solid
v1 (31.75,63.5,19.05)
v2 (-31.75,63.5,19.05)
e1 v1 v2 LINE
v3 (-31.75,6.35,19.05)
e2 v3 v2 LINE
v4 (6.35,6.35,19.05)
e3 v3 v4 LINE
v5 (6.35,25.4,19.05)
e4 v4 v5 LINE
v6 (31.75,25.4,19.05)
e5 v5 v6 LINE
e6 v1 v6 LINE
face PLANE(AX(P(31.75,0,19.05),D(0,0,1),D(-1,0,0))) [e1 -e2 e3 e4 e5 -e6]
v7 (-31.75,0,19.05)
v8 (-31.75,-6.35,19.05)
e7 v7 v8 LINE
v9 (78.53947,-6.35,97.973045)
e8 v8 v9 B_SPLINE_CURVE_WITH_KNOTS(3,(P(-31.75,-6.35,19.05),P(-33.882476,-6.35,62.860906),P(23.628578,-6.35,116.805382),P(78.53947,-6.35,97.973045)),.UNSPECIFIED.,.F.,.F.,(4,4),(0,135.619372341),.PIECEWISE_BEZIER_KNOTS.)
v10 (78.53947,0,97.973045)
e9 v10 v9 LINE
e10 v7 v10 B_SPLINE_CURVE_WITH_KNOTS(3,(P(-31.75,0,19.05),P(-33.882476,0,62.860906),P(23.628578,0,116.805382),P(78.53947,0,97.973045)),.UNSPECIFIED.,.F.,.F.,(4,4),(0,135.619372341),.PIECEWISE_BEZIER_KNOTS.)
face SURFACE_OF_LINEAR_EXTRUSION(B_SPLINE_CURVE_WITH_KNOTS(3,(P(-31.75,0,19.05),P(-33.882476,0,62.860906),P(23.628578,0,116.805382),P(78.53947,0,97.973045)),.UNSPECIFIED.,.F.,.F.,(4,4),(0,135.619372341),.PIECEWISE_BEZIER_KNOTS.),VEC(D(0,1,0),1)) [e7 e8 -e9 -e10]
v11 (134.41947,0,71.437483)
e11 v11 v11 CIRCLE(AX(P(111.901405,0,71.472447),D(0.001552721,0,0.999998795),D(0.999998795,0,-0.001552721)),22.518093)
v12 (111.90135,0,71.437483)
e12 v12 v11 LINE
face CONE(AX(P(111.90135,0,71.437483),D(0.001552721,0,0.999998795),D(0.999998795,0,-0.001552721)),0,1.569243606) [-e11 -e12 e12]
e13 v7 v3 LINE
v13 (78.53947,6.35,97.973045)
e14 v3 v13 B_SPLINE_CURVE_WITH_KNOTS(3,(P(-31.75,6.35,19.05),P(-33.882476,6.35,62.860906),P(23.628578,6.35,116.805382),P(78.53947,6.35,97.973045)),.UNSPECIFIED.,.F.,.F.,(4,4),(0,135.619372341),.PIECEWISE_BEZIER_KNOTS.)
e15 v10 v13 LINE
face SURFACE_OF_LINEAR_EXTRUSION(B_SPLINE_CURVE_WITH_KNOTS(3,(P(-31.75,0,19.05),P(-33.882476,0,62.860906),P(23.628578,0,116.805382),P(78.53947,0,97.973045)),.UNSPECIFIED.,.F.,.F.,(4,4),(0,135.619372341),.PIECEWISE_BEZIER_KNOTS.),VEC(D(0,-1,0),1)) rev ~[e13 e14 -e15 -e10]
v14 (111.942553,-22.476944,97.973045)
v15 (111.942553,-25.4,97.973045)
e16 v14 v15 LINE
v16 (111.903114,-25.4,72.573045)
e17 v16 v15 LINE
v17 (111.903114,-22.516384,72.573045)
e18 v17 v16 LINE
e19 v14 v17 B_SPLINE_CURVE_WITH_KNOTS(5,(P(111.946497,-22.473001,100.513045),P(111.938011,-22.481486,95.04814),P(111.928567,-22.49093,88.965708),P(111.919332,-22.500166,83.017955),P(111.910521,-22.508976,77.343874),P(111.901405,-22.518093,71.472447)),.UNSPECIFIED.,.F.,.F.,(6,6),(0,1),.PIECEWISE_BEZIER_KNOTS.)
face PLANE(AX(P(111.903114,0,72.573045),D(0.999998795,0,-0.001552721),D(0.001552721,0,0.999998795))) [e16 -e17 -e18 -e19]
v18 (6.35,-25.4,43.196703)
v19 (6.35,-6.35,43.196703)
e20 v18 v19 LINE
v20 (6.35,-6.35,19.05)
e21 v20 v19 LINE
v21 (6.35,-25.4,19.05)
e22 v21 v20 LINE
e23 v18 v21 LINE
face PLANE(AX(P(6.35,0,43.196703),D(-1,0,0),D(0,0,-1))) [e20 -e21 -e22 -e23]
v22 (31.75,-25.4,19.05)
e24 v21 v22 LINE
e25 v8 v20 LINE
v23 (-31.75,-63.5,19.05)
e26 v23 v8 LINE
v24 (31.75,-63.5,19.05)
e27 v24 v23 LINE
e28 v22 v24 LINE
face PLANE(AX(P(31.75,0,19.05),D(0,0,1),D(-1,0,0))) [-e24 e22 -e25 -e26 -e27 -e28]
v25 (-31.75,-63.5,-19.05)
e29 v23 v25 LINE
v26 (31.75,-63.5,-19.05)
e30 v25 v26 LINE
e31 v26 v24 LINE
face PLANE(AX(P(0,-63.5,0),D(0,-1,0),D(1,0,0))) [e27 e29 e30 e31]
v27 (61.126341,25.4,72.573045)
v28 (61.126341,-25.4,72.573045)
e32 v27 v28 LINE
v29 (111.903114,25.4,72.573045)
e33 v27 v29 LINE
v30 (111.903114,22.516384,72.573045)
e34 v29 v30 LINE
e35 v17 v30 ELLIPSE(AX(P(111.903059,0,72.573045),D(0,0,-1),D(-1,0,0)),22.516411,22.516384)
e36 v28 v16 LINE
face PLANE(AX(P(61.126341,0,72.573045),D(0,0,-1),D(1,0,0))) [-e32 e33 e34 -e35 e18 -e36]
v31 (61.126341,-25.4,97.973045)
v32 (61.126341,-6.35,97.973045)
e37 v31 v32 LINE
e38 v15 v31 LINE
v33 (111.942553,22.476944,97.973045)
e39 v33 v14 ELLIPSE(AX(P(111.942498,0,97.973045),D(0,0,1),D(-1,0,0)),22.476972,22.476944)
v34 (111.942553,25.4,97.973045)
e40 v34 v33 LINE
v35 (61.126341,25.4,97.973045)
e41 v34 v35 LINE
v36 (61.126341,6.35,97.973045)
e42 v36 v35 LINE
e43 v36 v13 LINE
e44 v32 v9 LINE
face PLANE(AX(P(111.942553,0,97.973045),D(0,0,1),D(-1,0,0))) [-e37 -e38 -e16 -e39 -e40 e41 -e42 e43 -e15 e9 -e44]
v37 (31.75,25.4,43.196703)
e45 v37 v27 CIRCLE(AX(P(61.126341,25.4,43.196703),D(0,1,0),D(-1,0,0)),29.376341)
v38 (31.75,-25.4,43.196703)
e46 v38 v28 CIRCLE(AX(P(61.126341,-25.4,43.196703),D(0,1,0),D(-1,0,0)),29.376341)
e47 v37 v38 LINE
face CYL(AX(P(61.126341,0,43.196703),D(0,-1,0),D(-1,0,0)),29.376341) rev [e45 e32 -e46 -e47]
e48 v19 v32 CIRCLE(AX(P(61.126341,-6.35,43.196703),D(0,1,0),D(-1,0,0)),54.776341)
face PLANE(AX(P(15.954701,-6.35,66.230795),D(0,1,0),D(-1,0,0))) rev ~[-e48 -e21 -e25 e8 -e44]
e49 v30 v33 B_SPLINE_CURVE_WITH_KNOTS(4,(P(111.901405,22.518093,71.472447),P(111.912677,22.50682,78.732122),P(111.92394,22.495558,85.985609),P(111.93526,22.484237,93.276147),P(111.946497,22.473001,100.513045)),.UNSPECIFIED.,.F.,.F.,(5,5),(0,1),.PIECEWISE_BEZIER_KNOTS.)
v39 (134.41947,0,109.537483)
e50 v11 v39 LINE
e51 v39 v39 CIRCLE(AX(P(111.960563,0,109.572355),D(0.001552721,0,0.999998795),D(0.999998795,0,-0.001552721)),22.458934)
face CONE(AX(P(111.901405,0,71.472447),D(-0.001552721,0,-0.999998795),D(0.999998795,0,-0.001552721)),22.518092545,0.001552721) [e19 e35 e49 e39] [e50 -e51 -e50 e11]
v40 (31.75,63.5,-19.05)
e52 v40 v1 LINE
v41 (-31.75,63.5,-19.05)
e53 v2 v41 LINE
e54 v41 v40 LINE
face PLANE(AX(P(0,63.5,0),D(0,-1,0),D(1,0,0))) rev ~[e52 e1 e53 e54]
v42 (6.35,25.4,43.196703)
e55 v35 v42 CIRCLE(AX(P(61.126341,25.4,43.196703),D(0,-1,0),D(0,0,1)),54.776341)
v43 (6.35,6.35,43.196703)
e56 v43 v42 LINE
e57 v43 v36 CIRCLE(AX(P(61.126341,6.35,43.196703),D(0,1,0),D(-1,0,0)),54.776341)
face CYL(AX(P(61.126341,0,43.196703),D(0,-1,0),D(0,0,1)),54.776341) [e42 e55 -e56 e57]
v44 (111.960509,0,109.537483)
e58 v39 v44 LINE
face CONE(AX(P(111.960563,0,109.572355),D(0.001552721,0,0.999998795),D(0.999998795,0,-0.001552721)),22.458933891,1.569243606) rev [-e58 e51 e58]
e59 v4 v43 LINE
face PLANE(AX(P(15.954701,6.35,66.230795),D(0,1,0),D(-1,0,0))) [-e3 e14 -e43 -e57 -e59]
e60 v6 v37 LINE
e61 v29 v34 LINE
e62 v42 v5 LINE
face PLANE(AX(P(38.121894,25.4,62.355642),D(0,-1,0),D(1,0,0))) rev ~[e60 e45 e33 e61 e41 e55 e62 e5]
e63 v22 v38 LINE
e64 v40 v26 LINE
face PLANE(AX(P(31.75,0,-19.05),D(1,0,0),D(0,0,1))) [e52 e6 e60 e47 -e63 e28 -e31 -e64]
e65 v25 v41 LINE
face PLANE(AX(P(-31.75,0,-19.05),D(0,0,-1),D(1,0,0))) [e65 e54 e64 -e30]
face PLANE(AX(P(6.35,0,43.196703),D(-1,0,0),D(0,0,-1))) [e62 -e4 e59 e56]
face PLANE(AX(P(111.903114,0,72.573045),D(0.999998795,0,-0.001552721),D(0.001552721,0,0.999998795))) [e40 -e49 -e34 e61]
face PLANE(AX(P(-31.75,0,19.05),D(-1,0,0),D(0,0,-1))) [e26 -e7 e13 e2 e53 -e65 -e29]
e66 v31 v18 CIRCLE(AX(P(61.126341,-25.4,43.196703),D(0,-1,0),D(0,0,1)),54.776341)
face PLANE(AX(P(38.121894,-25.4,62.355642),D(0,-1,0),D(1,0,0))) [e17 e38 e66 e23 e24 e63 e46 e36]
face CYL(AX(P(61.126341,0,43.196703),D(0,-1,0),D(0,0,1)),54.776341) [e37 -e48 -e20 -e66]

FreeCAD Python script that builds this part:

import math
import FreeCAD as App
import Part
import Sketcher
Q = App.Units.Quantity


def add_polygon(sketch, points):
    """Adds a closed chain of lines whose ends are joined by coincident constraints."""
    first, n = sketch.GeometryCount, len(points)
    for a, b in zip(points, points[1:] + points[:1]):
        sketch.addGeometry(Part.LineSegment(App.Vector(*a, 0), App.Vector(*b, 0)), False)
    for i in range(n):
        sketch.addConstraint(Sketcher.Constraint("Coincident", first + i, 2, first + (i + 1) % n, 1))

doc = App.newDocument("Part")
params = doc.addObject("Spreadsheet::Sheet", "Params")
for row, (alias, value) in enumerate([
    ("sketch1_width", "2.5 in"),
    ("sketch1_height", "1.5 in"),
    ("pad1_length", "5 in"),
    ("sketch2_width", "1 in"),
    ("pad2_length", "2 in"),
    ("sketch3_width", "1.5 in"),
    ("pad3_length", "0.5 in"),
    ("sketch4_height", "1.5 in"),
    ("revolution_angle", "360 deg"),
], start=1):
    params.set(f"A{row}", alias)
    params.set(f"B{row}", "=" + value)
    params.setAlias(f"B{row}", alias)

body = doc.addObject("PartDesign::Body", "Body")

# Sketch on XZ plane
sketch1 = body.newObject("Sketcher::SketchObject", "Sketch")
sketch1.AttachmentSupport = (doc.getObject("XZ_Plane"), [""])
sketch1.MapMode = "FlatFace"
add_polygon(sketch1, [(-32, -19), (32, -19), (32, 19), (-32, 19)])  # lines 0-3
sketch1.addConstraint(Sketcher.Constraint("Horizontal", 0))
sketch1.addConstraint(Sketcher.Constraint("Vertical", 1))
sketch1.addConstraint(Sketcher.Constraint("Horizontal", 2))
sketch1.addConstraint(Sketcher.Constraint("Vertical", 3))
sketch1.addConstraint(Sketcher.Constraint("Symmetric", 0, 2, 2, 2, -1, 1))
sketch1.addConstraint(Sketcher.Constraint("DistanceX", 0, 1, 0, 2, Q("2.5 in")))
sketch1.addConstraint(Sketcher.Constraint("DistanceY", 1, 1, 1, 2, Q("1.5 in")))
sketch1.setExpression("Constraints[9]", "Params.sketch1_width")
sketch1.setExpression("Constraints[10]", "Params.sketch1_height")
pad1 = body.newObject("PartDesign::Pad", "Pad")
pad1.Profile = sketch1
pad1.setExpression("Length", "Params.pad1_length")
pad1.Midplane = True

# Sketch on XZ plane
sketch2 = body.newObject("Sketcher::SketchObject", "Sketch001")
sketch2.AttachmentSupport = (doc.getObject("XZ_Plane"), [""])
sketch2.MapMode = "FlatFace"
sketch2.addGeometry(Part.LineSegment(App.Vector(6, 19, 0), App.Vector(32, 19, 0)), False)
sketch2.addGeometry(Part.LineSegment(App.Vector(32, 19, 0), App.Vector(32, 43, 0)), False)
sketch2.addGeometry(Part.ArcOfCircle(Part.Circle(App.Vector(61, 43, 0), App.Vector(0, 0, 1), 29), math.radians(90), math.radians(180)), False)
sketch2.addGeometry(Part.LineSegment(App.Vector(61, 73, 0), App.Vector(112, 73, 0)), False)
sketch2.addGeometry(Part.LineSegment(App.Vector(112, 73, 0), App.Vector(112, 98, 0)), False)
sketch2.addGeometry(Part.LineSegment(App.Vector(112, 98, 0), App.Vector(61, 98, 0)), False)
sketch2.addGeometry(Part.ArcOfCircle(Part.Circle(App.Vector(61, 43, 0), App.Vector(0, 0, 1), 55), math.radians(90), math.radians(180)), False)
sketch2.addGeometry(Part.LineSegment(App.Vector(6, 43, 0), App.Vector(6, 19, 0)), False)
sketch2.addConstraint(Sketcher.Constraint("Coincident", 0, 2, 1, 1))
sketch2.addConstraint(Sketcher.Constraint("Tangent", 1, 2, 2, 2))
sketch2.addConstraint(Sketcher.Constraint("Tangent", 2, 1, 3, 1))
sketch2.addConstraint(Sketcher.Constraint("Coincident", 3, 2, 4, 1))
sketch2.addConstraint(Sketcher.Constraint("Coincident", 4, 2, 5, 1))
sketch2.addConstraint(Sketcher.Constraint("Tangent", 5, 2, 6, 1))
sketch2.addConstraint(Sketcher.Constraint("Tangent", 6, 2, 7, 1))
sketch2.addConstraint(Sketcher.Constraint("Coincident", 7, 2, 0, 1))
sketch2.addConstraint(Sketcher.Constraint("Horizontal", 0))
sketch2.addConstraint(Sketcher.Constraint("Vertical", 1))
sketch2.addConstraint(Sketcher.Constraint("Horizontal", 3))
sketch2.addConstraint(Sketcher.Constraint("Horizontal", 5))
sketch2.addConstraint(Sketcher.Constraint("Vertical", 7))
sketch2.addConstraint(Sketcher.Constraint("Coincident", 6, 3, 2, 3))
sketch2.addConstraint(Sketcher.Constraint("DistanceX", 0, 1, 0, 2, Q("1 in")))
sketch2.addConstraint(Sketcher.Constraint("DistanceX", -1, 1, 0, 2, Q("1.25 in")))
sketch2.addConstraint(Sketcher.Constraint("DistanceY", -1, 1, 0, 2, Q("0.75 in")))
sketch2.addConstraint(Sketcher.Constraint("Radius", 2, 29.376341))
sketch2.addConstraint(Sketcher.Constraint("DistanceX", 5, 2, 5, 1, 50.816211))
sketch2.addConstraint(Sketcher.Constraint("DistanceX", 3, 1, 3, 2, 50.776772))
sketch2.addConstraint(Sketcher.Constraint("DistanceY", 1, 1, 1, 2, 24.146703))
sketch2.setExpression("Constraints[14]", "Params.sketch2_width")
pad2 = body.newObject("PartDesign::Pad", "Pad001")
pad2.Profile = sketch2
pad2.setExpression("Length", "Params.pad2_length")
pad2.Midplane = True

# Sketch on XZ plane
sketch3 = body.newObject("Sketcher::SketchObject", "Sketch002")
sketch3.AttachmentSupport = (doc.getObject("XZ_Plane"), [""])
sketch3.MapMode = "FlatFace"
sketch3.addGeometry(Part.BSplineCurve([App.Vector(-31.75, 19.05, 0), App.Vector(-33.882476, 62.860906, 0), App.Vector(23.628578, 116.805382, 0), App.Vector(78.53947, 97.973045, 0)], [4, 4], [0, 135.619372341], False, 3, [1, 1, 1, 1], False), False)
sketch3.addGeometry(Part.LineSegment(App.Vector(-31.75, 19.05, 0), App.Vector(6.35, 19.05, 0)), False)
sketch3.addGeometry(Part.LineSegment(App.Vector(6.35, 19.05, 0), App.Vector(6.35, 43.196703, 0)), False)
sketch3.addGeometry(Part.ArcOfCircle(Part.Circle(App.Vector(61.126341, 43.196703, 0), App.Vector(0, 0, 1), 54.776341), math.radians(90), math.radians(180)), False)
sketch3.addGeometry(Part.LineSegment(App.Vector(61.126341, 97.973045, 0), App.Vector(78.53947, 97.973045, 0)), False)
sketch3.addConstraint(Sketcher.Constraint("Block", 0))
sketch3.addConstraint(Sketcher.Constraint("Coincident", 0, 1, 1, 1))
sketch3.addConstraint(Sketcher.Constraint("Coincident", 1, 2, 2, 1))
sketch3.addConstraint(Sketcher.Constraint("Tangent", 2, 2, 3, 2))
sketch3.addConstraint(Sketcher.Constraint("Tangent", 3, 1, 4, 1))
sketch3.addConstraint(Sketcher.Constraint("Coincident", 4, 2, 0, 2))
sketch3.addConstraint(Sketcher.Constraint("Horizontal", 1))
sketch3.addConstraint(Sketcher.Constraint("Vertical", 2))
sketch3.addConstraint(Sketcher.Constraint("Horizontal", 4))
sketch3.addConstraint(Sketcher.Constraint("DistanceX", 1, 1, 1, 2, Q("1.5 in")))
sketch3.addConstraint(Sketcher.Constraint("Radius", 3, 54.776341))
sketch3.setExpression("Constraints[9]", "Params.sketch3_width")
pad3 = body.newObject("PartDesign::Pad", "Pad002")
pad3.Profile = sketch3
pad3.setExpression("Length", "Params.pad3_length")
pad3.Midplane = True

# Sketch on XZ plane
sketch4 = body.newObject("Sketcher::SketchObject", "Sketch003")
sketch4.AttachmentSupport = (doc.getObject("XZ_Plane"), [""])
sketch4.MapMode = "FlatFace"
add_polygon(sketch4, [(112, 109.5), (111.9, 98), (111.9, 72.6), (111.9, 71.4), (134.4, 71.4), (134.4, 109.5)])  # lines 0-5
sketch4.addGeometry(Part.LineSegment(App.Vector(111.9, 71.4, 0), App.Vector(112, 109.6, 0)), True)  # axis
sketch4.addConstraint(Sketcher.Constraint("Horizontal", 3))
sketch4.addConstraint(Sketcher.Constraint("Vertical", 4))
sketch4.addConstraint(Sketcher.Constraint("Horizontal", 5))
sketch4.addConstraint(Sketcher.Constraint("Coincident", 6, 1, 2, 2))
sketch4.addConstraint(Sketcher.Constraint("Parallel", 0, 1))
sketch4.addConstraint(Sketcher.Constraint("Parallel", 1, 2))
sketch4.addConstraint(Sketcher.Constraint("Parallel", 2, 6))
sketch4.addConstraint(Sketcher.Constraint("DistanceY", 4, 1, 4, 2, Q("1.5 in")))
sketch4.addConstraint(Sketcher.Constraint("DistanceY", 1, 2, 0, 2, Q("1 in")))
sketch4.addConstraint(Sketcher.Constraint("DistanceX", 3, 1, 3, 2, 22.51812))
sketch4.addConstraint(Sketcher.Constraint("DistanceX", 5, 2, 5, 1, 22.458961))
sketch4.addConstraint(Sketcher.Constraint("Distance", 0, 11.564452))
sketch4.addConstraint(Sketcher.Constraint("Distance", 6, 38.134918))
sketch4.addConstraint(Sketcher.Constraint("DistanceX", -1, 1, 2, 2, 111.90135))
sketch4.addConstraint(Sketcher.Constraint("DistanceY", -1, 1, 0, 2, 97.973045))
sketch4.setExpression("Constraints[13]", "Params.sketch4_height")
revolution = body.newObject("PartDesign::Revolution", "Revolution")
revolution.Profile = sketch4
revolution.ReferenceAxis = (sketch4, ["Axis0"])
revolution.setExpression("Angle", "Params.revolution_angle")

doc.recompute()
